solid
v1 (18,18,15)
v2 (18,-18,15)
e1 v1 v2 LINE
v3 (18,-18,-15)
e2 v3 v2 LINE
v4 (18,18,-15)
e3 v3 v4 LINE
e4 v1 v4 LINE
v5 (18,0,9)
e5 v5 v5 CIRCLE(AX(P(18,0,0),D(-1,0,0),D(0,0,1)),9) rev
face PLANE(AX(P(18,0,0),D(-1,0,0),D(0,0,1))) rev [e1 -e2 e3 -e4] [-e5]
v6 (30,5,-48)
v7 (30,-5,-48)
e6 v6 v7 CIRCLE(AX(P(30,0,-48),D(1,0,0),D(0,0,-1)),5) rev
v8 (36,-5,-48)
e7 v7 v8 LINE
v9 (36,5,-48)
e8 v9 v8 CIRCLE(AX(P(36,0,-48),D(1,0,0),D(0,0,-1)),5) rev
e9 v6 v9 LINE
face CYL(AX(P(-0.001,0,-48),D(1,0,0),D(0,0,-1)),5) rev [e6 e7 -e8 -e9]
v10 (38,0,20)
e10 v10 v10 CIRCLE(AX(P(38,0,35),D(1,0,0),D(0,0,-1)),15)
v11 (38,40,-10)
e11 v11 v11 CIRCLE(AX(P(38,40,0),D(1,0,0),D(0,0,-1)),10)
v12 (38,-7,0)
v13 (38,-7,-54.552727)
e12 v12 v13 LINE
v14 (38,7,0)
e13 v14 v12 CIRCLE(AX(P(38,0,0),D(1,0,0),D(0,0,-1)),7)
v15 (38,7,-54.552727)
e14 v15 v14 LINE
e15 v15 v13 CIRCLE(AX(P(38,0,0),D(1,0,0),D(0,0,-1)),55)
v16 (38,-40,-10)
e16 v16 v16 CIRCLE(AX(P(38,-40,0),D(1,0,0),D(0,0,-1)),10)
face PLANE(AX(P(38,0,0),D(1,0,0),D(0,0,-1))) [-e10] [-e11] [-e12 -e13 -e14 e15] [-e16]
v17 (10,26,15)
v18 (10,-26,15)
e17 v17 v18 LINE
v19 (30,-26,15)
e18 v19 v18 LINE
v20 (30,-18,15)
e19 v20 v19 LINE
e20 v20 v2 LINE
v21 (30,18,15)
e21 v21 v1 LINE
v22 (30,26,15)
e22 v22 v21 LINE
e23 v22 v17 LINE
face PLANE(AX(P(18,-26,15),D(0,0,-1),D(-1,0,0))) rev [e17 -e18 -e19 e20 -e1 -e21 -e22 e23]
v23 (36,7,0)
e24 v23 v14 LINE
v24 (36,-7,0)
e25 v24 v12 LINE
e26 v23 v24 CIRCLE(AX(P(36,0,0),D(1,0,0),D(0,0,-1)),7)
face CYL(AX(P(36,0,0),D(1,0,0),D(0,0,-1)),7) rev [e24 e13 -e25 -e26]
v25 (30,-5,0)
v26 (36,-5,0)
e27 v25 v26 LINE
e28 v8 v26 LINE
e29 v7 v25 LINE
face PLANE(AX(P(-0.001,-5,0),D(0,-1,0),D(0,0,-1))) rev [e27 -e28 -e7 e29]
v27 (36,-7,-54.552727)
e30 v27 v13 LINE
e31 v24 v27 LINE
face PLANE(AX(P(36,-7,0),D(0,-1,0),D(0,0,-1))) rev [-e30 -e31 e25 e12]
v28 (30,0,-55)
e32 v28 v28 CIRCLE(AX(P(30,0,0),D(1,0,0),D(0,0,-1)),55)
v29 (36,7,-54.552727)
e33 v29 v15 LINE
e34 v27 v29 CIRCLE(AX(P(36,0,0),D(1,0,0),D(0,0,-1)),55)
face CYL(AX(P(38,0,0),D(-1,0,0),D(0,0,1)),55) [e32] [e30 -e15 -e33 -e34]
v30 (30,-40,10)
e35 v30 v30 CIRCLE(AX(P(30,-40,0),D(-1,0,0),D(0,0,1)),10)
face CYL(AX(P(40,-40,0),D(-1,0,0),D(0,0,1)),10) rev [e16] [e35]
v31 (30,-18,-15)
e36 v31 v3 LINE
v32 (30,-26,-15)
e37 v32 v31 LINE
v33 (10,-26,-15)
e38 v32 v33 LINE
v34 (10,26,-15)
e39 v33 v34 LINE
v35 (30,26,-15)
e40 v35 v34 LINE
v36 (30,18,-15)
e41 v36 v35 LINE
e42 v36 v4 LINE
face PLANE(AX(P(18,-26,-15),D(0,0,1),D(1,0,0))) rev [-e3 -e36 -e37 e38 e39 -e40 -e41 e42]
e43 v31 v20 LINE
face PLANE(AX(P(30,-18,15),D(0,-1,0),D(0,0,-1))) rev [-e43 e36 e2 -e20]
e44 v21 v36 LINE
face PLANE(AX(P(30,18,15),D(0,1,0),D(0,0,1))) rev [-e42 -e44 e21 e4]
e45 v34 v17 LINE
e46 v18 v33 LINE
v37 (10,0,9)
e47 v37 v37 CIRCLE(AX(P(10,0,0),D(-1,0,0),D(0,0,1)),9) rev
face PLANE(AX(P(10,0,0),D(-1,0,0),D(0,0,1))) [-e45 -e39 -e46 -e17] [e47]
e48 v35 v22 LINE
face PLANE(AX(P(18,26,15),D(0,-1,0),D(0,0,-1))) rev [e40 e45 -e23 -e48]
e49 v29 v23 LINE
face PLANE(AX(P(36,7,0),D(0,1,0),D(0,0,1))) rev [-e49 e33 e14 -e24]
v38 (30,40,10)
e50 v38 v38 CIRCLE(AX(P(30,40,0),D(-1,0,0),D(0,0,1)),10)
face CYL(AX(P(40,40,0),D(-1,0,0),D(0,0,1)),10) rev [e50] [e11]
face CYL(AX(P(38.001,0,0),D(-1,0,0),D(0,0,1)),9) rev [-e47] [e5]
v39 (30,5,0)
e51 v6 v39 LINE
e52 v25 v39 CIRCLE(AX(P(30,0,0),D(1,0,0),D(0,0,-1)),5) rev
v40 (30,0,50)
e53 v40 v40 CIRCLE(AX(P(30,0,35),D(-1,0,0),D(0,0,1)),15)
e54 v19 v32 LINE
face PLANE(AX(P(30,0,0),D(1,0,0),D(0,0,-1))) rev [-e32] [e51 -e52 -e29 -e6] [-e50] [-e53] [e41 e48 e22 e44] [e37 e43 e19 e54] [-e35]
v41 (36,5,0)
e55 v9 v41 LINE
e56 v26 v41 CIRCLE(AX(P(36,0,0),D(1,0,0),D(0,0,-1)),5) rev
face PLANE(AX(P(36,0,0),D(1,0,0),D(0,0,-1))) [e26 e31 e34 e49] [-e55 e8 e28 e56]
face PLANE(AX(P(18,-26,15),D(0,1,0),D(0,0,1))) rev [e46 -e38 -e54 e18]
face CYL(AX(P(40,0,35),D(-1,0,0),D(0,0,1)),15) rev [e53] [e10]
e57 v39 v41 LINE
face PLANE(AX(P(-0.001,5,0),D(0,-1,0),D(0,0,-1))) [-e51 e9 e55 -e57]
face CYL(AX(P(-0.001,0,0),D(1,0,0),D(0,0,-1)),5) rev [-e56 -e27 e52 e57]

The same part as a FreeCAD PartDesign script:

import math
import FreeCAD as App
import Part
import Sketcher
Q = App.Units.Quantity


def add_polygon(sketch, points):
    """Adds a closed chain of lines whose ends are joined by coincident constraints."""
    first, n = sketch.GeometryCount, len(points)
    for a, b in zip(points, points[1:] + points[:1]):
        sketch.addGeometry(Part.LineSegment(App.Vector(*a, 0), App.Vector(*b, 0)), False)
    for i in range(n):
        sketch.addConstraint(Sketcher.Constraint("Coincident", first + i, 2, first + (i + 1) % n, 1))

doc = App.newDocument("Part")
body = doc.addObject("PartDesign::Body", "Body")

sketch1 = body.newObject("Sketcher::SketchObject", "Sketch")
sketch1.AttachmentSupport = (doc.getObject("YZ_Plane"), [""])
sketch1.MapMode = "FlatFace"
sketch1.addGeometry(Part.Circle(App.Vector(0, 0, 0), App.Vector(0, 0, 1), 8), False)
sketch1.addConstraint(Sketcher.Constraint("Coincident", 0, 3, -1, 1))
sketch1.addConstraint(Sketcher.Constraint("Diameter", 0, Q("15 mm")))
pad1 = body.newObject("PartDesign::Pad", "Pad")
pad1.Profile = sketch1
pad1.Length = 10

sketch2 = body.newObject("Sketcher::SketchObject", "Sketch001")
sketch2.AttachmentSupport = (doc.getObject("YZ_Plane"), [""])
sketch2.MapMode = "FlatFace"
sketch2.AttachmentOffset = App.Placement(App.Vector(0, 0, 10), App.Rotation())
add_polygon(sketch2, [(26, 15), (-26, 15), (-26, -15), (26, -15)])
sketch2.addConstraint(Sketcher.Constraint("Horizontal", 0))
sketch2.addConstraint(Sketcher.Constraint("Vertical", 1))
sketch2.addConstraint(Sketcher.Constraint("Horizontal", 2))
sketch2.addConstraint(Sketcher.Constraint("Vertical", 3))
sketch2.addConstraint(Sketcher.Constraint("Symmetric", 0, 2, 2, 2, -1, 1))
sketch2.addConstraint(Sketcher.Constraint("DistanceX", 0, 2, 0, 1, Q("52 mm")))
sketch2.addConstraint(Sketcher.Constraint("DistanceY", 1, 2, 1, 1, Q("30 mm")))
pad2 = body.newObject("PartDesign::Pad", "Pad001")
pad2.Profile = sketch2
pad2.Length = 8

sketch3 = body.newObject("Sketcher::SketchObject", "Sketch002")
sketch3.AttachmentSupport = (doc.getObject("YZ_Plane"), [""])
sketch3.MapMode = "FlatFace"
sketch3.AttachmentOffset = App.Placement(App.Vector(0, 0, 18), App.Rotation())
add_polygon(sketch3, [(26, 15), (18, 15), (18, -15), (26, -15)])
add_polygon(sketch3, [(-18, 15), (-26, 15), (-26, -15), (-18, -15)])
sketch3.addConstraint(Sketcher.Constraint("Horizontal", 0))
sketch3.addConstraint(Sketcher.Constraint("Vertical", 1))
sketch3.addConstraint(Sketcher.Constraint("Horizontal", 2))
sketch3.addConstraint(Sketcher.Constraint("Vertical", 3))
sketch3.addConstraint(Sketcher.Constraint("Horizontal", 4))
sketch3.addConstraint(Sketcher.Constraint("Vertical", 5))
sketch3.addConstraint(Sketcher.Constraint("Horizontal", 6))
sketch3.addConstraint(Sketcher.Constraint("Vertical", 7))
sketch3.addConstraint(Sketcher.Constraint("Symmetric", 2, 2, 4, 2, -1, 1))
sketch3.addConstraint(Sketcher.Constraint("Symmetric", 0, 2, 6, 2, -1, 1))
sketch3.addConstraint(Sketcher.Constraint("Horizontal", 3, 2, 4, 2))
sketch3.addConstraint(Sketcher.Constraint("DistanceX", 0, 2, 0, 1, Q("8 mm")))
sketch3.addConstraint(Sketcher.Constraint("DistanceY", 1, 2, 1, 1, Q("30 mm")))
sketch3.addConstraint(Sketcher.Constraint("DistanceX", -1, 1, 0, 2, Q("18 mm")))
pad3 = body.newObject("PartDesign::Pad", "Pad002")
pad3.Profile = sketch3
pad3.Length = 12

sketch4 = body.newObject("Sketcher::SketchObject", "Sketch003")
sketch4.AttachmentSupport = (doc.getObject("YZ_Plane"), [""])
sketch4.MapMode = "FlatFace"
sketch4.AttachmentOffset = App.Placement(App.Vector(0, 0, 30), App.Rotation())
sketch4.addGeometry(Part.Circle(App.Vector(0, 0, 0), App.Vector(0, 0, 1), 55), False)
sketch4.addConstraint(Sketcher.Constraint("Coincident", 0, 3, -1, 1))
sketch4.addConstraint(Sketcher.Constraint("Diameter", 0, Q("110 mm")))
pad4 = body.newObject("PartDesign::Pad", "Pad003")
pad4.Profile = sketch4
pad4.Length = 8

sketch5 = body.newObject("Sketcher::SketchObject", "Sketch004")
sketch5.AttachmentSupport = (doc.getObject("YZ_Plane"), [""])
sketch5.MapMode = "FlatFace"
sketch5.AttachmentOffset = App.Placement(App.Vector(0, 0, 38), App.Rotation())
sketch5.addGeometry(Part.LineSegment(App.Vector(5, -48, 0), App.Vector(5, 0, 0)), False)
sketch5.addGeometry(Part.ArcOfCircle(Part.Circle(App.Vector(0, 0, 0), App.Vector(0, 0, 1), 5), math.radians(0), math.radians(180)), False)
sketch5.addGeometry(Part.LineSegment(App.Vector(-5, 0, 0), App.Vector(-5, -48, 0)), False)
sketch5.addGeometry(Part.ArcOfCircle(Part.Circle(App.Vector(0, -48, 0), App.Vector(0, 0, 1), 5), math.radians(180), math.radians(360)), False)
sketch5.addConstraint(Sketcher.Constraint("Tangent", 0, 2, 1, 1))
sketch5.addConstraint(Sketcher.Constraint("Tangent", 1, 2, 2, 1))
sketch5.addConstraint(Sketcher.Constraint("Tangent", 2, 2, 3, 1))
sketch5.addConstraint(Sketcher.Constraint("Tangent", 3, 2, 0, 1))
sketch5.addConstraint(Sketcher.Constraint("Vertical", 0))
sketch5.addConstraint(Sketcher.Constraint("Vertical", 2))
sketch5.addConstraint(Sketcher.Constraint("Coincident", 1, 3, -1, 1))
sketch5.addConstraint(Sketcher.Constraint("Radius", 1, Q("5 mm")))
sketch5.addConstraint(Sketcher.Constraint("DistanceY", 0, 1, 0, 2, Q("48 mm")))
pocket1 = body.newObject("PartDesign::Pocket", "Pocket")
pocket1.Profile = sketch5
pocket1.Type = "UpToFirst"

sketch6 = body.newObject("Sketcher::SketchObject", "Sketch005")
sketch6.AttachmentSupport = (doc.getObject("YZ_Plane"), [""])
sketch6.MapMode = "FlatFace"
sketch6.AttachmentOffset = App.Placement(App.Vector(0, 0, 38), App.Rotation())
sketch6.addGeometry(Part.LineSegment(App.Vector(7, -55, 0), App.Vector(7, 0, 0)), False)
sketch6.addGeometry(Part.ArcOfCircle(Part.Circle(App.Vector(0, 0, 0), App.Vector(0, 0, 1), 7), math.radians(0), math.radians(180)), False)
sketch6.addGeometry(Part.LineSegment(App.Vector(-7, 0, 0), App.Vector(-7, -55, 0)), False)
sketch6.addGeometry(Part.ArcOfCircle(Part.Circle(App.Vector(0, 0, 0), App.Vector(0, 0, 1), 55), math.radians(-97.31), math.radians(-82.69)), False)
sketch6.addConstraint(Sketcher.Constraint("Tangent", 0, 2, 1, 1))
sketch6.addConstraint(Sketcher.Constraint("Tangent", 1, 2, 2, 1))
sketch6.addConstraint(Sketcher.Constraint("Coincident", 2, 2, 3, 1))
sketch6.addConstraint(Sketcher.Constraint("Coincident", 3, 2, 0, 1))
sketch6.addConstraint(Sketcher.Constraint("Vertical", 0))
sketch6.addConstraint(Sketcher.Constraint("Vertical", 2))
sketch6.addConstraint(Sketcher.Constraint("Coincident", 1, 3, -1, 1))
sketch6.addConstraint(Sketcher.Constraint("Coincident", 3, 3, -1, 1))
sketch6.addConstraint(Sketcher.Constraint("Radius", 1, Q("7 mm")))
sketch6.addConstraint(Sketcher.Constraint("Radius", 3, Q("55 mm")))
pocket2 = body.newObject("PartDesign::Pocket", "Pocket001")
pocket2.Profile = sketch6
pocket2.Length = 2

sketch7 = body.newObject("Sketcher::SketchObject", "Sketch006")
sketch7.AttachmentSupport = (doc.getObject("YZ_Plane"), [""])
sketch7.MapMode = "FlatFace"
sketch7.addGeometry(Part.Circle(App.Vector(0, 0, 0), App.Vector(0, 0, 1), 9), False)
sketch7.addConstraint(Sketcher.Constraint("Coincident", 0, 3, -1, 1))
sketch7.addConstraint(Sketcher.Constraint("Diameter", 0, Q("18 mm")))
pocket3 = body.newObject("PartDesign::Pocket", "Pocket002")
pocket3.Profile = sketch7
pocket3.Type = "UpToFirst"
pocket3.Reversed = True

sketch8 = body.newObject("Sketcher::SketchObject", "Sketch007")
sketch8.AttachmentSupport = (doc.getObject("YZ_Plane"), [""])
sketch8.MapMode = "FlatFace"
sketch8.AttachmentOffset = App.Placement(App.Vector(0, 0, 30), App.Rotation())
sketch8.addGeometry(Part.Circle(App.Vector(40, 0, 0), App.Vector(0, 0, 1), 10), False)
sketch8.addGeometry(Part.Circle(App.Vector(0, 35, 0), App.Vector(0, 0, 1), 15), False)
sketch8.addGeometry(Part.Circle(App.Vector(-40, 0, 0), App.Vector(0, 0, 1), 10), False)
sketch8.addConstraint(Sketcher.Constraint("Equal", 0, 2))
sketch8.addConstraint(Sketcher.Constraint("Symmetric", 0, 3, 2, 3, -1, 1))
sketch8.addConstraint(Sketcher.Constraint("PointOnObject", 0, 3, -1))
sketch8.addConstraint(Sketcher.Constraint("PointOnObject", 1, 3, -2))
sketch8.addConstraint(Sketcher.Constraint("Diameter", 0, Q("20 mm")))
sketch8.addConstraint(Sketcher.Constraint("Diameter", 1, Q("30 mm")))
sketch8.addConstraint(Sketcher.Constraint("DistanceX", -1, 1, 0, 3, Q("40 mm")))
sketch8.addConstraint(Sketcher.Constraint("DistanceY", -1, 1, 1, 3, Q("35 mm")))
pocket4 = body.newObject("PartDesign::Pocket", "Pocket003")
pocket4.Profile = sketch8
pocket4.Length = 10
pocket4.Reversed = True

doc.recompute()
